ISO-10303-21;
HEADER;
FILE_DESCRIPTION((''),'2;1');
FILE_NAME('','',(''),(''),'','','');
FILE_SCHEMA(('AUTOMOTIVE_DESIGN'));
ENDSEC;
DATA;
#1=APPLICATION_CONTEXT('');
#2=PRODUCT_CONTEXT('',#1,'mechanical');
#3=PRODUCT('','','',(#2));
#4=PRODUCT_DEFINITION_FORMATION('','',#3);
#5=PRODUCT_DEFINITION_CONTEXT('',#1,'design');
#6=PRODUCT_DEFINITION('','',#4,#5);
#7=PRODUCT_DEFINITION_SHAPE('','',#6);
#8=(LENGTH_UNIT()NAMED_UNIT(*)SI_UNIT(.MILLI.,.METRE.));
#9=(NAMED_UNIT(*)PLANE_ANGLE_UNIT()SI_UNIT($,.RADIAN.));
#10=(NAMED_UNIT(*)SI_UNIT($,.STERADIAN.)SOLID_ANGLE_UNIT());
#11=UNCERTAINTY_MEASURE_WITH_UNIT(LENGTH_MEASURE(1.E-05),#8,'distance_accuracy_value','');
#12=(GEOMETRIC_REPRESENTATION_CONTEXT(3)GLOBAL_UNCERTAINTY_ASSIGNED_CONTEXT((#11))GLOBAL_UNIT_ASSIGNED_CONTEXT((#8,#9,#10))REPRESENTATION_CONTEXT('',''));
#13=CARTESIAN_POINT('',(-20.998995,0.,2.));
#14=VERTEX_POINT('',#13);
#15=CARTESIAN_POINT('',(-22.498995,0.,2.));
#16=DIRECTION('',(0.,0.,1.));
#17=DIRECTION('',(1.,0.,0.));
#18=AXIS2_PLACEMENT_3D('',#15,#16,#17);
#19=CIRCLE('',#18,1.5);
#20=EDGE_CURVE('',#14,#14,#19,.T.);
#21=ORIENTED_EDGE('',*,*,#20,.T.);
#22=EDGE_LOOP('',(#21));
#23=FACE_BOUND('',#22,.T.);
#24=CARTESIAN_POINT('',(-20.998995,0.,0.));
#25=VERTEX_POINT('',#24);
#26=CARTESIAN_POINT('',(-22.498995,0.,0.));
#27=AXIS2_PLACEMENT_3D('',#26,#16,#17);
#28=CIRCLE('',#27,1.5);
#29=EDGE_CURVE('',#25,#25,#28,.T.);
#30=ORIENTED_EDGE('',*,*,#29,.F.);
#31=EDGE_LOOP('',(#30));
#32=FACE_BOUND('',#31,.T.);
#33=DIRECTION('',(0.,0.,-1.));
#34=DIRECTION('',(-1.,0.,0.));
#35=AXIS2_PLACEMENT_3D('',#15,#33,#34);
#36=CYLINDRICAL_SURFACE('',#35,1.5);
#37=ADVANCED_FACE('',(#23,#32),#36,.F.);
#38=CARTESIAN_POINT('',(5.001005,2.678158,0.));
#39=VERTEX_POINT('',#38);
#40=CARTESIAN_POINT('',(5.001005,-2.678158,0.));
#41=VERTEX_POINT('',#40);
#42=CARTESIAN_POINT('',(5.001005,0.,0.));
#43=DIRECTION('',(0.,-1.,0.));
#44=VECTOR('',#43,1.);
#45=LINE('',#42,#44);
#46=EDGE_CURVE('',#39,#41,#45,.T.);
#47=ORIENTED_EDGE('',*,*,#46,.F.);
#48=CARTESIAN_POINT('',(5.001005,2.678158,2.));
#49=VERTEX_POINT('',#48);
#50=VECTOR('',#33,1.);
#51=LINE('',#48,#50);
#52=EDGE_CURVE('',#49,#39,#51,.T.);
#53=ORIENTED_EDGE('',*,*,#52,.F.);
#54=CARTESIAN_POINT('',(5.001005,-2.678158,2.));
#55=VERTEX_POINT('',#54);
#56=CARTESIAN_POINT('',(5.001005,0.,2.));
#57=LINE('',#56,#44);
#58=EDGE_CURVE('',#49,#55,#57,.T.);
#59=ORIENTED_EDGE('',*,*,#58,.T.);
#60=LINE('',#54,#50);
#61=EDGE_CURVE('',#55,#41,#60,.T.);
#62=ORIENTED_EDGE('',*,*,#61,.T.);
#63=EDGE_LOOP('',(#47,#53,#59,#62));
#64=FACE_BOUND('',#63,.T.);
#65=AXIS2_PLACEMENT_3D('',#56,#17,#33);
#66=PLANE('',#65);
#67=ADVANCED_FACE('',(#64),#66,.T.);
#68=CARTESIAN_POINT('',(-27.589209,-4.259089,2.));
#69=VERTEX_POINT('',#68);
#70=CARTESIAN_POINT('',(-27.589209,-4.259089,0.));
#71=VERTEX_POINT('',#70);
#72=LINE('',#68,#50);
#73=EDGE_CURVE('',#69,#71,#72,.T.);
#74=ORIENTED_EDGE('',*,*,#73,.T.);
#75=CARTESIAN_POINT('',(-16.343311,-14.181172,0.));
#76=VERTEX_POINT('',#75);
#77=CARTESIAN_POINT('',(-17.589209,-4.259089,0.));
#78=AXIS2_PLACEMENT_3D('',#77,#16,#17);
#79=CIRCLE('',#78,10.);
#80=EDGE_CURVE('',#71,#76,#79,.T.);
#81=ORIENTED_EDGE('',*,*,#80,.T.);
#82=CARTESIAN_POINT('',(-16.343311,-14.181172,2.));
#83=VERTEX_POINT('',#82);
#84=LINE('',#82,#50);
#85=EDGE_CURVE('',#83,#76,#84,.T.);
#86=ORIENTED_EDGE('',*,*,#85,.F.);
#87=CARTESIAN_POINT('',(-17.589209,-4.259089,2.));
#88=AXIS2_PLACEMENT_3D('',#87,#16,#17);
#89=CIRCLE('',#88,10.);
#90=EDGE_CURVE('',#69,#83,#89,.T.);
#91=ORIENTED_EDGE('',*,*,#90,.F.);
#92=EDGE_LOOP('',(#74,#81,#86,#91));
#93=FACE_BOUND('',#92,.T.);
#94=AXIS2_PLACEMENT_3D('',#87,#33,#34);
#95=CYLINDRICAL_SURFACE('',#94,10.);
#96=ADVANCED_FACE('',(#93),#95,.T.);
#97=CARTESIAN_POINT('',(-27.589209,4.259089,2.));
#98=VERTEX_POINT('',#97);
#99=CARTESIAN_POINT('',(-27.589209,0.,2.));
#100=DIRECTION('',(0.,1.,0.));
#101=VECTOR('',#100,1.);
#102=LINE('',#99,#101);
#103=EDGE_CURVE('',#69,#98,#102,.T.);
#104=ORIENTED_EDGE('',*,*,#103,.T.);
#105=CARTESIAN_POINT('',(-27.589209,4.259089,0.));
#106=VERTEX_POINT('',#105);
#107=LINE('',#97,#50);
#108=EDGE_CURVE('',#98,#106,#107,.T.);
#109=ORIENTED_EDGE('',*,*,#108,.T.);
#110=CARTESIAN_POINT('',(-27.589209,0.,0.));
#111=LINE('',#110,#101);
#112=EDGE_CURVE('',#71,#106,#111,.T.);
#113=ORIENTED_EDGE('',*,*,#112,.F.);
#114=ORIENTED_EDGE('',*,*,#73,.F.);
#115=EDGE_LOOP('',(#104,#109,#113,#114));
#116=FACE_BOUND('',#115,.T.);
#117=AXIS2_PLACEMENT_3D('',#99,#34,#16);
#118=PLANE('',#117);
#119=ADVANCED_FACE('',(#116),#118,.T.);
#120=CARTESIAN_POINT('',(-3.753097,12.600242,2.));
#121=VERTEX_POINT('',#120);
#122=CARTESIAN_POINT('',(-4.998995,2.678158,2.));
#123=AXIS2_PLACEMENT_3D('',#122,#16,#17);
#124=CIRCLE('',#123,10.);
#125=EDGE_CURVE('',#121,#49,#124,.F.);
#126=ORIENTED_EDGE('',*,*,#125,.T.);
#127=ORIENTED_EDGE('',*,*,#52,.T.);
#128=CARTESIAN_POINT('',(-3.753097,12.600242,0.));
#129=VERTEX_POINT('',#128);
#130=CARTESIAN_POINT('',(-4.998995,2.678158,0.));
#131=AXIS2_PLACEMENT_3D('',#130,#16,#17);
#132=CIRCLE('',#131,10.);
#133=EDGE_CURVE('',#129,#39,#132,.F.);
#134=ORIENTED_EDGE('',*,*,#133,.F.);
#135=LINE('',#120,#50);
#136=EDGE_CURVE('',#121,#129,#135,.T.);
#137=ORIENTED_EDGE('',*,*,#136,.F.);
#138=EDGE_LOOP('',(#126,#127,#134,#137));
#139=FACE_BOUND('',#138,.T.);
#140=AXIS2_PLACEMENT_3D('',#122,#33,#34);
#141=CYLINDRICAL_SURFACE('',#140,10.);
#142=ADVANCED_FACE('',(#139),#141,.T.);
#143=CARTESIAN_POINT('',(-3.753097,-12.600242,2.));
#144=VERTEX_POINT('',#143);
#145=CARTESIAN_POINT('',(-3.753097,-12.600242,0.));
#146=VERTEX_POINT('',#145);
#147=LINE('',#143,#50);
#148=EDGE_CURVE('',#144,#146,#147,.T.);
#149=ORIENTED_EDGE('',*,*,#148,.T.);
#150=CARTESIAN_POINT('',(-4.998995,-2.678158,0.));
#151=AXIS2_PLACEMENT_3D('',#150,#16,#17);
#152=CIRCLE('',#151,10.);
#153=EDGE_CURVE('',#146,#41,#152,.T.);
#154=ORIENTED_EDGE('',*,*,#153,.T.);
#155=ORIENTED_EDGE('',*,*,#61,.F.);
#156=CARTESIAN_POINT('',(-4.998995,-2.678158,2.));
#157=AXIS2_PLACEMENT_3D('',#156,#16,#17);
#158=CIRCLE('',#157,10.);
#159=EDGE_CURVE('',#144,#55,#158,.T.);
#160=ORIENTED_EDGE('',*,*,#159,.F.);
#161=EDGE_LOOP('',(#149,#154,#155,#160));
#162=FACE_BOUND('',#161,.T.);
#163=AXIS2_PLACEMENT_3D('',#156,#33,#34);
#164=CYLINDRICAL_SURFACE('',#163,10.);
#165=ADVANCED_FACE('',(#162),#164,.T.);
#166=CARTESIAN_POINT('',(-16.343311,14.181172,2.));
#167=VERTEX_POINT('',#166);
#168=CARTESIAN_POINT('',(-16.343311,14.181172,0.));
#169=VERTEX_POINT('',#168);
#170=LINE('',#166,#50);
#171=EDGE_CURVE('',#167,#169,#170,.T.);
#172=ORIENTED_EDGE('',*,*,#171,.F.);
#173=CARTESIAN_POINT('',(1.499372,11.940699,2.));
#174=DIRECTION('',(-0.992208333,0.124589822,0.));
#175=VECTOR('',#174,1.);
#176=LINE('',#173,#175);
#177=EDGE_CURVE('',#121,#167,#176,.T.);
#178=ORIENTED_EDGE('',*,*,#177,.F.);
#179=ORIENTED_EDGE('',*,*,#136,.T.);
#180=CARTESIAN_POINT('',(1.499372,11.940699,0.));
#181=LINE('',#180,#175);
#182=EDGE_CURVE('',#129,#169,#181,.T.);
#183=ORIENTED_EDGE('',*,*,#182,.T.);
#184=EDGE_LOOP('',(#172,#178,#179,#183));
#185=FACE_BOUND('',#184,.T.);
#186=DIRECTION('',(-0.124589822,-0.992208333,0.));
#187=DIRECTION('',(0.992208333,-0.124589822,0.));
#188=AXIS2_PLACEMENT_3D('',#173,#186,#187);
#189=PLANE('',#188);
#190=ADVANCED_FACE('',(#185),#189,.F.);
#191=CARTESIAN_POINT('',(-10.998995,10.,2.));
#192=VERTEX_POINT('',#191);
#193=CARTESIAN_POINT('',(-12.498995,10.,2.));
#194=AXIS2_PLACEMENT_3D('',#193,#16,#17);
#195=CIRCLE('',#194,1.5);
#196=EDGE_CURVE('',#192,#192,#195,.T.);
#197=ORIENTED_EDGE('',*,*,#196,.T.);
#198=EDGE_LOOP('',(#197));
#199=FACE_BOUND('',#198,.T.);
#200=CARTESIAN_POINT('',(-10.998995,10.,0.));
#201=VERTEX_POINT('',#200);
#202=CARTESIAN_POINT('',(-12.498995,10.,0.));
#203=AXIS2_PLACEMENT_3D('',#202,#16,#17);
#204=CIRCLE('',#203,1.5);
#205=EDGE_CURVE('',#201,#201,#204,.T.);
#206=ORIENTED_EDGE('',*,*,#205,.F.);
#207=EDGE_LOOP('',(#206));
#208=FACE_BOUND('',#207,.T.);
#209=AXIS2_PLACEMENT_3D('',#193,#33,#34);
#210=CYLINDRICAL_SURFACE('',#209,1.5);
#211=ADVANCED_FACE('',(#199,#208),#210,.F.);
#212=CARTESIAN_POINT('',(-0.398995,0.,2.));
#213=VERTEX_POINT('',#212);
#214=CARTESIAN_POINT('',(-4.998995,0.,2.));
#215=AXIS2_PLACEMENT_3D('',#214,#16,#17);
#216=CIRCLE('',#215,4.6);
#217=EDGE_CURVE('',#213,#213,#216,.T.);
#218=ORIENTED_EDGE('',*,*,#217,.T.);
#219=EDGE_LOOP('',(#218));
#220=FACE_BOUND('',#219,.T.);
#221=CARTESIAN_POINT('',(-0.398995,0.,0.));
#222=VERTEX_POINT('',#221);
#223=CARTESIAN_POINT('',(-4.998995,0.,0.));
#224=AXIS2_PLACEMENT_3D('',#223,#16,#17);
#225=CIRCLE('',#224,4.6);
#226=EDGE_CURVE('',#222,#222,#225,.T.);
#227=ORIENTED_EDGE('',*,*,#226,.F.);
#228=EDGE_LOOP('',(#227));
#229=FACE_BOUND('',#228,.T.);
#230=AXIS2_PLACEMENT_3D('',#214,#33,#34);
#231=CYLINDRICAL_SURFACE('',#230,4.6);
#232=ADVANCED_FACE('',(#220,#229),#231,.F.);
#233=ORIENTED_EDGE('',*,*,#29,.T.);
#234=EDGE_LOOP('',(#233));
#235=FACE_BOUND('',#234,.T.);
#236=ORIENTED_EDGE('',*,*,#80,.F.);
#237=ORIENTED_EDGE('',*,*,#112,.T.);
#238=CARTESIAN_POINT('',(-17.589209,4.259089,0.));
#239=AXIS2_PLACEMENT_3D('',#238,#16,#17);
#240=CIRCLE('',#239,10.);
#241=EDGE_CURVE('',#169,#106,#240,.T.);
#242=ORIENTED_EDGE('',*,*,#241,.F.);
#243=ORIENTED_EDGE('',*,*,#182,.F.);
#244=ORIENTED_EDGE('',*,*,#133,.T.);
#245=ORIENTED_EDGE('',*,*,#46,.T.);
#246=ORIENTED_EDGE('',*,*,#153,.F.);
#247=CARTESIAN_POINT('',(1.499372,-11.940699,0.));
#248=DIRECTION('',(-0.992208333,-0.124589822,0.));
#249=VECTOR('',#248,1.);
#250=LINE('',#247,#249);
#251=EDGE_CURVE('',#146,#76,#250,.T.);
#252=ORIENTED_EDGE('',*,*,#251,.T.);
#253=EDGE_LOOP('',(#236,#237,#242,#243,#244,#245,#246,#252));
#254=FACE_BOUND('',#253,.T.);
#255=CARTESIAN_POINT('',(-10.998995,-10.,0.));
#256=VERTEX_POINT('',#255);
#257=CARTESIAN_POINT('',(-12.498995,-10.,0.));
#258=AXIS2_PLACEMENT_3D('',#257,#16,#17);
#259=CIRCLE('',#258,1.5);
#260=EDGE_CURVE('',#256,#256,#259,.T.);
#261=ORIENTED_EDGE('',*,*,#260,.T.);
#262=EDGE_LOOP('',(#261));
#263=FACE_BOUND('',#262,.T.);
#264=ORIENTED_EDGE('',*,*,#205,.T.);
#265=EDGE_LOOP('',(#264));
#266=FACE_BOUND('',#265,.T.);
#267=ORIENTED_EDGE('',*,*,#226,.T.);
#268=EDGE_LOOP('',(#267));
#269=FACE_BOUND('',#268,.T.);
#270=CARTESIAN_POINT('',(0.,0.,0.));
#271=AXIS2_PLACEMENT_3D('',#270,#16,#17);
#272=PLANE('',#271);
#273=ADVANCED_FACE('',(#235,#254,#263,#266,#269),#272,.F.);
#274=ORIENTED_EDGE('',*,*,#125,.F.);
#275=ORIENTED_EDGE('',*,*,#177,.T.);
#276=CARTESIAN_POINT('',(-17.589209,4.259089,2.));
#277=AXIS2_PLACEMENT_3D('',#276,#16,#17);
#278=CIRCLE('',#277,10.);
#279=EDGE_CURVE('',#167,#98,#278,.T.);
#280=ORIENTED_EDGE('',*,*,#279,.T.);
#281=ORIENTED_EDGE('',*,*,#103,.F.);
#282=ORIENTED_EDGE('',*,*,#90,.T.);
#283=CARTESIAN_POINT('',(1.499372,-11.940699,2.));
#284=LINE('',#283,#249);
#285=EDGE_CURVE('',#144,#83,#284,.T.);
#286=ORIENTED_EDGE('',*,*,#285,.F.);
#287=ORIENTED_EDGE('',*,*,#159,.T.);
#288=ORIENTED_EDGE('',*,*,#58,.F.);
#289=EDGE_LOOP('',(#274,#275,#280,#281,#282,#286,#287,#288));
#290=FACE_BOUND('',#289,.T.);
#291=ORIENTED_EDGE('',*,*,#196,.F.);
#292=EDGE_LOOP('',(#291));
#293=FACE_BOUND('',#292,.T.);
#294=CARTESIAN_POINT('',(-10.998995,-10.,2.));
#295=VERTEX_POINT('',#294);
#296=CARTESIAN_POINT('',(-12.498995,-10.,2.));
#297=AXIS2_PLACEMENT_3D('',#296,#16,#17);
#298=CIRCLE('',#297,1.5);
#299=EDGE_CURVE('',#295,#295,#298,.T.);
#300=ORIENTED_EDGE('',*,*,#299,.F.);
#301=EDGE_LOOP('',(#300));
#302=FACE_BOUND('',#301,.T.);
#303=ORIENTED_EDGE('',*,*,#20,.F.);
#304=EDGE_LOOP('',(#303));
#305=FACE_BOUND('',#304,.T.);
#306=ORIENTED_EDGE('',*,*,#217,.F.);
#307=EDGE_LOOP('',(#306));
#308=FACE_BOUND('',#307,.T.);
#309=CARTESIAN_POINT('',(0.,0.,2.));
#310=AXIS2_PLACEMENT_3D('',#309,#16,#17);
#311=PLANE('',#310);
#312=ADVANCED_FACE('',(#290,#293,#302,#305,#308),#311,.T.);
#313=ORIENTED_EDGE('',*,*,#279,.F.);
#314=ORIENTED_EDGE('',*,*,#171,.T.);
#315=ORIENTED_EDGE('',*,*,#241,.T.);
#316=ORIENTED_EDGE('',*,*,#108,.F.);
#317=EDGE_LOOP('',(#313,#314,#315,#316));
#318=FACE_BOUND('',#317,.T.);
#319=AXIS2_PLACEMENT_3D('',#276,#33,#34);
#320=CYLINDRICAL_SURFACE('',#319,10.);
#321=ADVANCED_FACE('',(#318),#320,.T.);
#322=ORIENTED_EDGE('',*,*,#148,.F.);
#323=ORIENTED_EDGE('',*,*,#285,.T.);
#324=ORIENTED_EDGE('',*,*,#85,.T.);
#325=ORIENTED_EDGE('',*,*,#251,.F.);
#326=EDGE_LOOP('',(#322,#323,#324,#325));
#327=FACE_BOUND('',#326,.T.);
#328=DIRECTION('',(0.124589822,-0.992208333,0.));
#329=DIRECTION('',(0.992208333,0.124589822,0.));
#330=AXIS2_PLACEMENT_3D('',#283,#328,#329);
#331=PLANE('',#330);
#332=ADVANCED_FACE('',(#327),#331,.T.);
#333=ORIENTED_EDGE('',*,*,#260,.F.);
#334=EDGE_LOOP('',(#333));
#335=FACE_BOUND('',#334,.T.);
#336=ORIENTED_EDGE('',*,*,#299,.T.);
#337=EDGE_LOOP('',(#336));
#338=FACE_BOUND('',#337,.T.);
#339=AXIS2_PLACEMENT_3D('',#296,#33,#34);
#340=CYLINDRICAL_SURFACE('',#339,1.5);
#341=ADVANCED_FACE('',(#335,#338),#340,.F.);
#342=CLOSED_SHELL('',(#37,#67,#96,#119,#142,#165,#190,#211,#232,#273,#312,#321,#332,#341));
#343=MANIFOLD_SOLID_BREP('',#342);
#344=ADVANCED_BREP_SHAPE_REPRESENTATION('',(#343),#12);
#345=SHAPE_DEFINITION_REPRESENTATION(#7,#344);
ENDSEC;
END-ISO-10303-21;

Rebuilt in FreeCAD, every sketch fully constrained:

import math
import FreeCAD as App
import Part
import Sketcher
from FreeCAD import Vector

doc = App.newDocument("Part")
params = doc.addObject("Spreadsheet::Sheet", "Params")
for row, (alias, value) in enumerate([
    ("sketch1_diameter", "3 mm"),
    ("sketch1_radius", "10 mm"),
    ("sketch1_diameter2", "9.2 mm"),
    ("pad1_length", "2 mm"),
], start=1):
    params.set(f"A{row}", alias)
    params.set(f"B{row}", "=" + value)
    params.setAlias(f"B{row}", alias)

body = doc.addObject("PartDesign::Body", "Body")

# Sketch on XY plane
sketch1 = doc.addObject("Sketcher::SketchObject", "Sketch")
body.addObject(sketch1)
sketch1.AttachmentSupport = (doc.XY_Plane, [""])
sketch1.MapMode = "FlatFace"
sketch1.addGeometry([
    Part.LineSegment(Vector(-3.8, 12.6, 0), Vector(-16.3, 14.2, 0)),  # 0
    Part.ArcOfCircle(Part.Circle(Vector(-17.6, 4.3, 0), Vector(0, 0, 1), 10), math.radians(83), math.radians(180)),  # 1
    Part.LineSegment(Vector(-27.6, 4.3, 0), Vector(-27.6, -4.3, 0)),  # 2
    Part.ArcOfCircle(Part.Circle(Vector(-17.6, -4.3, 0), Vector(0, 0, 1), 10), math.radians(-180), math.radians(-83)),  # 3
    Part.LineSegment(Vector(-16.3, -14.2, 0), Vector(-3.8, -12.6, 0)),  # 4
    Part.ArcOfCircle(Part.Circle(Vector(-5, -2.7, 0), Vector(0, 0, 1), 10), math.radians(-83), math.radians(0)),  # 5
    Part.LineSegment(Vector(5, -2.7, 0), Vector(5, 2.7, 0)),  # 6
    Part.ArcOfCircle(Part.Circle(Vector(-5, 2.7, 0), Vector(0, 0, 1), 10), math.radians(0), math.radians(83)),  # 7
    Part.Circle(Vector(-12.5, -10, 0), Vector(0, 0, 1), 1.5),  # 8
    Part.Circle(Vector(-22.5, 0, 0), Vector(0, 0, 1), 1.5),  # 9
    Part.Circle(Vector(-12.5, 10, 0), Vector(0, 0, 1), 1.5),  # 10
    Part.Circle(Vector(-5, 0, 0), Vector(0, 0, 1), 4.6),  # 11
], False)
sketch1.addConstraint([
    Sketcher.Constraint("Tangent", 0, 2, 1, 1),
    Sketcher.Constraint("Tangent", 1, 2, 2, 1),
    Sketcher.Constraint("Tangent", 2, 2, 3, 1),
    Sketcher.Constraint("Tangent", 3, 2, 4, 1),
    Sketcher.Constraint("Tangent", 4, 2, 5, 1),
    Sketcher.Constraint("Tangent", 5, 2, 6, 1),
    Sketcher.Constraint("Tangent", 6, 2, 7, 1),
    Sketcher.Constraint("Tangent", 7, 2, 0, 1),
    Sketcher.Constraint("Vertical", 2),
    Sketcher.Constraint("Vertical", 6),
    Sketcher.Constraint("Equal", 1, 3),
    Sketcher.Constraint("Equal", 3, 5),
    Sketcher.Constraint("Equal", 5, 7),
    Sketcher.Constraint("Equal", 8, 9),
    Sketcher.Constraint("Equal", 9, 10),
    Sketcher.Constraint("Symmetric", 8, 3, 10, 3, -1),
    Sketcher.Constraint("Symmetric", 0, 2, 3, 2, -1),
    Sketcher.Constraint("PointOnObject", 9, 3, -1),
    Sketcher.Constraint("PointOnObject", 11, 3, -1),
    Sketcher.Constraint("Vertical", 7, 3, 11, 3),
    Sketcher.Constraint("Diameter", 8, 3.0),
    Sketcher.Constraint("Radius", 1, 10.0),
    Sketcher.Constraint("Diameter", 11, 9.2),
    Sketcher.Constraint("DistanceY", 8, 3, -1, 1, 10.0),
    Sketcher.Constraint("DistanceX", 9, 3, 8, 3, 10.0),
    Sketcher.Constraint("DistanceX", 8, 3, 5, 3, 7.5),
    Sketcher.Constraint("DistanceX", 1, 3, 0, 2, 1.245898),
    Sketcher.Constraint("DistanceY", 4, 2, 7, 3, 15.2784),
    Sketcher.Constraint("DistanceY", 2, 2, 2, 1, 8.518178),
    Sketcher.Constraint("DistanceX", 1, 3, -1, 1, 17.589209),
])
sketch1.setExpression("Constraints[20]", "Params.sketch1_diameter")
sketch1.setExpression("Constraints[21]", "Params.sketch1_radius")
sketch1.setExpression("Constraints[22]", "Params.sketch1_diameter2")
pad1 = doc.addObject("PartDesign::Pad", "Pad")
body.addObject(pad1)
pad1.Profile = sketch1
pad1.setExpression("Length", "Params.pad1_length")

doc.recompute()
